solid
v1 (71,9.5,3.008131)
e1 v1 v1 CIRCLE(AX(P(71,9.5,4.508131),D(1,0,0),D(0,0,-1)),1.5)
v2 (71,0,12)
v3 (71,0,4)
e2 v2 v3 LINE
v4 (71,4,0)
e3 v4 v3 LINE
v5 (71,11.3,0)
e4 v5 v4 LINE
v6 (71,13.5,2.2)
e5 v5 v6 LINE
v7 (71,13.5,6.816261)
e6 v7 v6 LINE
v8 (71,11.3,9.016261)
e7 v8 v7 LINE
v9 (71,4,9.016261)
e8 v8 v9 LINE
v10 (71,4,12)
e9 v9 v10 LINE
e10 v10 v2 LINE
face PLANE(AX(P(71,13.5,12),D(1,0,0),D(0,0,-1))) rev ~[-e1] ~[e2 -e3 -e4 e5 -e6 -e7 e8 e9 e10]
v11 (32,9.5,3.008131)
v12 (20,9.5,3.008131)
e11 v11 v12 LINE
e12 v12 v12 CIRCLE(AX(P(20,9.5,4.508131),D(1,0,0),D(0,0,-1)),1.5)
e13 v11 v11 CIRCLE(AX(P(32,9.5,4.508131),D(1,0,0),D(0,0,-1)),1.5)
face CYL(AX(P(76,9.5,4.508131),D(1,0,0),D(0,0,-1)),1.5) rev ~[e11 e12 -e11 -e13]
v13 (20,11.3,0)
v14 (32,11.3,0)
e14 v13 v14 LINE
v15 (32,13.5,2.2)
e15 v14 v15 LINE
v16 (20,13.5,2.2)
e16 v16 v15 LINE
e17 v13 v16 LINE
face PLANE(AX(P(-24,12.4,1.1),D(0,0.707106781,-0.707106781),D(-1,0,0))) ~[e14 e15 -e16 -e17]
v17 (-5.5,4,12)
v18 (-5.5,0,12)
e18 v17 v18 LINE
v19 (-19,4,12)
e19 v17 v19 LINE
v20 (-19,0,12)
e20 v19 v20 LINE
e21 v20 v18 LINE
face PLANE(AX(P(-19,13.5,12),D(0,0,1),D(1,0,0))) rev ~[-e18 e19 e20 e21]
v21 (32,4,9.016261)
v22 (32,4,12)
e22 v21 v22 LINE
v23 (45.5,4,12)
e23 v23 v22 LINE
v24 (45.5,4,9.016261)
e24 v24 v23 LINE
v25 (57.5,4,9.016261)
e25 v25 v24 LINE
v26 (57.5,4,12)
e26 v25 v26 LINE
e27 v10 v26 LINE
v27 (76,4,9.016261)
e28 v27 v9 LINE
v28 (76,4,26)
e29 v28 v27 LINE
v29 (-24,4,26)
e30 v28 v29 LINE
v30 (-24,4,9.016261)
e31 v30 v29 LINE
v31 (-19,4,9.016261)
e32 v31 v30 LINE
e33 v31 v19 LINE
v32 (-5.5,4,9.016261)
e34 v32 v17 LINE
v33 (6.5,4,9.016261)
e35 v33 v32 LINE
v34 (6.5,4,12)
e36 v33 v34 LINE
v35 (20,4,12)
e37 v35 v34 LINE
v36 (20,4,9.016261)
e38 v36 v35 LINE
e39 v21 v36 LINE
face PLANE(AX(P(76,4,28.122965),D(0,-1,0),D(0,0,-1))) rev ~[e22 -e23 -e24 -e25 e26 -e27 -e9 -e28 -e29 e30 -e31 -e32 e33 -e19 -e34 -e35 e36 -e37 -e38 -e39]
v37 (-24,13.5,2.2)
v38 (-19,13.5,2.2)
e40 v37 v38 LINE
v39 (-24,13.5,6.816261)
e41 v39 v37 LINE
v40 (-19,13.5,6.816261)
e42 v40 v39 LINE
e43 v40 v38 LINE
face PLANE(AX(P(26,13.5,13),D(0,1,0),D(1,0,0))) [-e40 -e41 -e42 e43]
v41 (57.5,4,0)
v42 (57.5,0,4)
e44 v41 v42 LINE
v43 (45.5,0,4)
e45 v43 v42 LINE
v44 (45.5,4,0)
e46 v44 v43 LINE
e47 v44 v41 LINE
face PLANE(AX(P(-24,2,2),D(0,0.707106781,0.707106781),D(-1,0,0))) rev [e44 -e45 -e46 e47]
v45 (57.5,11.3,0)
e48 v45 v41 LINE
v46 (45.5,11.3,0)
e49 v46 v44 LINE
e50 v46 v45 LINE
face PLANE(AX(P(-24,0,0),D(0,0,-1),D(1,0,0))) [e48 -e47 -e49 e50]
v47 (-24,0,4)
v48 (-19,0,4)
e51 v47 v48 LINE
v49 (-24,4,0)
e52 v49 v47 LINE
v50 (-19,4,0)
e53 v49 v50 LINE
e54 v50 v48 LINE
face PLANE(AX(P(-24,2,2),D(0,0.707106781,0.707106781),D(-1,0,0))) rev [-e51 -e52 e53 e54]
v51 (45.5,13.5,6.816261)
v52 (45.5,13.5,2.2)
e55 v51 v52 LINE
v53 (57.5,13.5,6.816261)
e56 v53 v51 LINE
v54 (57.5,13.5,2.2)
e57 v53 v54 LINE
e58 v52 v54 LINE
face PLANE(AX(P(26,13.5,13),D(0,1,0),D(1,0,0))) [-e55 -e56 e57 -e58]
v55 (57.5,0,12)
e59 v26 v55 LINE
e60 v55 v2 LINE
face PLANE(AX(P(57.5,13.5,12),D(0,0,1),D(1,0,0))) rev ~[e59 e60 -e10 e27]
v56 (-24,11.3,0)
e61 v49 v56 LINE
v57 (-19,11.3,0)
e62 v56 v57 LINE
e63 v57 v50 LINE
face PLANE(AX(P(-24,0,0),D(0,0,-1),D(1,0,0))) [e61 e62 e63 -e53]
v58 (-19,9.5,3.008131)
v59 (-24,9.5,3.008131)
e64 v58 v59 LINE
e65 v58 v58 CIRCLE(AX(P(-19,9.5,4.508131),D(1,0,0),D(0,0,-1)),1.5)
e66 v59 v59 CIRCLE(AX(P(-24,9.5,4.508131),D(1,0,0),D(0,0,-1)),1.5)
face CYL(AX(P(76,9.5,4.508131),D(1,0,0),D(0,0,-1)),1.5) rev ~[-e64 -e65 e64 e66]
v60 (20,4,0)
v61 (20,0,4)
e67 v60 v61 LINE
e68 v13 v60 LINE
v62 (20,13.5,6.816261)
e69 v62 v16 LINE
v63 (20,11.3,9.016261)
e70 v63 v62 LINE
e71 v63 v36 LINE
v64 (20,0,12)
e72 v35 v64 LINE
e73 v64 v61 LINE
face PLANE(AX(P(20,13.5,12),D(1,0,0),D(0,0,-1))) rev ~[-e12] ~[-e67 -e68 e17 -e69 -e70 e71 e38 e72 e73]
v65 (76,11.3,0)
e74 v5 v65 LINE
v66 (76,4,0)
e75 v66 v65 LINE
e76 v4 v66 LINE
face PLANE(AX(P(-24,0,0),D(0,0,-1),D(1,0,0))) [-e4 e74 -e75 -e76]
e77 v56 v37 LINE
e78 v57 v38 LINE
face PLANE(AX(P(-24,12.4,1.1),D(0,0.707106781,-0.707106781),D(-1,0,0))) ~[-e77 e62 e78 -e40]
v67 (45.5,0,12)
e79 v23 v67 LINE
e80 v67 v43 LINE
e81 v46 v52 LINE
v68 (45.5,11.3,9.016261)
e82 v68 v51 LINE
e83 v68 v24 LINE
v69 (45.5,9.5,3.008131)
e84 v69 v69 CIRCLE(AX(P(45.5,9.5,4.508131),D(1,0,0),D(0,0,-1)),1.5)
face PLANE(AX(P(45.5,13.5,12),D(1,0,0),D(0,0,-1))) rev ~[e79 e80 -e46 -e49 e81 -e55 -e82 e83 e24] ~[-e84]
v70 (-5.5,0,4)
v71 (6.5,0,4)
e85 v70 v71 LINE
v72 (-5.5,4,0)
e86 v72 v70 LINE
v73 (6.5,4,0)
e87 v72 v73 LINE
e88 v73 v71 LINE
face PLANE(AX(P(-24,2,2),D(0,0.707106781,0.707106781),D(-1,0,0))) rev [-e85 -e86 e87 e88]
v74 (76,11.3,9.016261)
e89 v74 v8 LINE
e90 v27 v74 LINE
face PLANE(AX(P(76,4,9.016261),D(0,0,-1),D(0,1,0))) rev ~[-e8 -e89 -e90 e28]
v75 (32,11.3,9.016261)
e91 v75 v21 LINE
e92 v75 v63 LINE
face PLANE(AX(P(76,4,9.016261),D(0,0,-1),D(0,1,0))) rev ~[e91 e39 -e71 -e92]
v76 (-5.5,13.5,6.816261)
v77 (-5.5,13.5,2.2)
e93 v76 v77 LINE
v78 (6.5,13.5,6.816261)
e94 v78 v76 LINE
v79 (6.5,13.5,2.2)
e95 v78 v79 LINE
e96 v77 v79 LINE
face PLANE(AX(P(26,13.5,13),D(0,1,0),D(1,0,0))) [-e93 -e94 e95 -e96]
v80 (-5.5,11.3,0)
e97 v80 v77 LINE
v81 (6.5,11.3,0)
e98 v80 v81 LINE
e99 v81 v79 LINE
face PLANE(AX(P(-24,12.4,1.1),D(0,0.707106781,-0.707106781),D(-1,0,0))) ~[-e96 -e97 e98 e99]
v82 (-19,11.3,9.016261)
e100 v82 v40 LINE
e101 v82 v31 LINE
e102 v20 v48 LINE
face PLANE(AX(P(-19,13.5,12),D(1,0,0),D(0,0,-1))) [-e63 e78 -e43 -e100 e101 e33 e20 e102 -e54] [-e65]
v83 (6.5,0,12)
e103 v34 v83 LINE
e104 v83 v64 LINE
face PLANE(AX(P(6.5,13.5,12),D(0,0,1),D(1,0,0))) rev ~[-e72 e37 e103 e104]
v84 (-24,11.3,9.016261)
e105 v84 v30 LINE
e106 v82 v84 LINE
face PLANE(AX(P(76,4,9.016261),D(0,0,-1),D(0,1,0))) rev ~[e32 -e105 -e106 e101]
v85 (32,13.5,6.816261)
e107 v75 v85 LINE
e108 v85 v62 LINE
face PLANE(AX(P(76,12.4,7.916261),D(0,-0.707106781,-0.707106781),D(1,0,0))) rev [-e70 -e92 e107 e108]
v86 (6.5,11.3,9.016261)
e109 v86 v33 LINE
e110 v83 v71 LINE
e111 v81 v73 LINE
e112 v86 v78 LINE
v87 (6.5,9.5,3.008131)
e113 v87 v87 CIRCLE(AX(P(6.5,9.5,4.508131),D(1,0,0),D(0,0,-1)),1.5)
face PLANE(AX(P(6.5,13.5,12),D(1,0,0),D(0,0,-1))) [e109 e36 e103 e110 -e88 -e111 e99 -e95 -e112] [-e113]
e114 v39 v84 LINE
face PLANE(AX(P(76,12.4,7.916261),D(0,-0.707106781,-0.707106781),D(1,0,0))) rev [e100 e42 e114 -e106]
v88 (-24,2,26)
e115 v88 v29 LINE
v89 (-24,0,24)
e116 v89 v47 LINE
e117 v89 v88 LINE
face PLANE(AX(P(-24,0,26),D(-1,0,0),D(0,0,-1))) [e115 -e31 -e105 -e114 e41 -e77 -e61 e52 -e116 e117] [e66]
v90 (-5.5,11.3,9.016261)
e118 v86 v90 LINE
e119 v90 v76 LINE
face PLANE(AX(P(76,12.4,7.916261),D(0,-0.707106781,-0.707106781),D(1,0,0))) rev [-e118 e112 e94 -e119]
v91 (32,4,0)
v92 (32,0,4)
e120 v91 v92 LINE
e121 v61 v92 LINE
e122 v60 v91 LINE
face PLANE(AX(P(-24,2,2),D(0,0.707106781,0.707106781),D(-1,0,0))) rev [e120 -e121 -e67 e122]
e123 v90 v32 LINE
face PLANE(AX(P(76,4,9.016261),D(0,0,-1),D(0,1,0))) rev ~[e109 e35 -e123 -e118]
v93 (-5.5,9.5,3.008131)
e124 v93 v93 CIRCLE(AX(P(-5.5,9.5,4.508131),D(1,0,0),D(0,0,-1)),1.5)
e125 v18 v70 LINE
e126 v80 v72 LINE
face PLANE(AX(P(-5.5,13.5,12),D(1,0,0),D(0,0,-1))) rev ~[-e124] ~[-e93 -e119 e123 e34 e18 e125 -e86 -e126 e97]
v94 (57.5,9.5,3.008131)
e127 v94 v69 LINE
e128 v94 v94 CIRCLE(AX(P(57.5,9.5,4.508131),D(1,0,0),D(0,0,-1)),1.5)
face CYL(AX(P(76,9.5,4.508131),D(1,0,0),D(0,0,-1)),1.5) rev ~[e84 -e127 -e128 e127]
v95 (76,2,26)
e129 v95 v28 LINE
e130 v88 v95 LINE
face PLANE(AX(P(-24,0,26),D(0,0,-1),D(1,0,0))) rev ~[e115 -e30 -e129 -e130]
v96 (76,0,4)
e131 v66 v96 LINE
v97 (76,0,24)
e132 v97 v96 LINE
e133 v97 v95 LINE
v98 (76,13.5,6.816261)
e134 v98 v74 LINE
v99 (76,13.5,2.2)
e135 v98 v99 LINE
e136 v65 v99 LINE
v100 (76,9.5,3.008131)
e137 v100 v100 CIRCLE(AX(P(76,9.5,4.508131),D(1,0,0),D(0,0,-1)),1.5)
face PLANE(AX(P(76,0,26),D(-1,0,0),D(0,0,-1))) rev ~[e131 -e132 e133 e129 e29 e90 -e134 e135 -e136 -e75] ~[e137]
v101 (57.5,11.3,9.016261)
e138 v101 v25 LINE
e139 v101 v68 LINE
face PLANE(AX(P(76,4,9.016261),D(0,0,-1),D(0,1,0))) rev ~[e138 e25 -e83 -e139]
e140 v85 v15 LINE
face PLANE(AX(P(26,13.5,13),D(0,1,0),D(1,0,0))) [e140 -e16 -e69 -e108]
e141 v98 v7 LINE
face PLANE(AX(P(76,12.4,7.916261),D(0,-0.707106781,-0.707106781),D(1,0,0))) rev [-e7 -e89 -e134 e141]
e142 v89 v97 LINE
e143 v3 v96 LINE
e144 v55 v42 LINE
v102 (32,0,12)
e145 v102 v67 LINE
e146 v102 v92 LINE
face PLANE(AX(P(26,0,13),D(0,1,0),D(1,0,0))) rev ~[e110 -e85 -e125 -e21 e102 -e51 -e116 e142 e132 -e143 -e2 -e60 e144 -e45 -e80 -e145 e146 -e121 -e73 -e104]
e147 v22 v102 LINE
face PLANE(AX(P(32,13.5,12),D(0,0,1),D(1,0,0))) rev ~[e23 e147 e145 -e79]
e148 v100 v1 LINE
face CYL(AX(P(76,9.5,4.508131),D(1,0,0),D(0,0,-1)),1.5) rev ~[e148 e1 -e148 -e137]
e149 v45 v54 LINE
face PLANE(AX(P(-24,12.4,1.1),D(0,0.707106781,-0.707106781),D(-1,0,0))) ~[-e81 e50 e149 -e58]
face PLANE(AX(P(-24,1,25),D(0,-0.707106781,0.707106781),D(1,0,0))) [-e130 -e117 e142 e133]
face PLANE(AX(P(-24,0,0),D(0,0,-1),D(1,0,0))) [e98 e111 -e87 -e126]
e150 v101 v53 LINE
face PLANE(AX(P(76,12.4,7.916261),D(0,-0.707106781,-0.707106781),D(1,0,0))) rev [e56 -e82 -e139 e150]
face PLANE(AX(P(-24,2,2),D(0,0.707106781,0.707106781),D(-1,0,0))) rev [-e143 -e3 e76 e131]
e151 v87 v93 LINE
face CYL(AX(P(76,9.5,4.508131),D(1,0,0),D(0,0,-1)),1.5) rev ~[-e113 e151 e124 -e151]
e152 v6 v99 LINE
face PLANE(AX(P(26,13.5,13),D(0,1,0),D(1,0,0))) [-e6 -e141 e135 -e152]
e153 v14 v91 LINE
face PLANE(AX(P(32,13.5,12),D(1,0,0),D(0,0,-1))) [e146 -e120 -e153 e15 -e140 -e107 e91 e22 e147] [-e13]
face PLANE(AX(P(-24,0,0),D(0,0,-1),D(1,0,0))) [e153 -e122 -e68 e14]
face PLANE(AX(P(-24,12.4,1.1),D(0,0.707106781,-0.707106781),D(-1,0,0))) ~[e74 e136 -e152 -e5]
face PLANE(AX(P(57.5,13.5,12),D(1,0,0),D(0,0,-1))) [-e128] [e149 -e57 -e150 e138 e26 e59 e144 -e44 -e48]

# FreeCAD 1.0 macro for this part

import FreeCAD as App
import Part
import Sketcher

V = App.Vector


def edges_at(feature, points):
    """Names of the edges that pass closest to the given points."""
    edges = feature.Shape.Edges
    near = lambda p: min(range(len(edges)), key=lambda i: edges[i].distToShape(Part.Vertex(*p))[0])
    return sorted({f"Edge{near(p) + 1}" for p in points})


def add_polygon(sketch, points):
    """Adds a closed chain of lines whose ends are joined by coincident constraints."""
    first, n = sketch.GeometryCount, len(points)
    for a, b in zip(points, points[1:] + points[:1]):
        sketch.addGeometry(Part.LineSegment(App.Vector(*a, 0), App.Vector(*b, 0)), False)
    for i in range(n):
        sketch.addConstraint(Sketcher.Constraint("Coincident", first + i, 2, first + (i + 1) % n, 1))

doc = App.newDocument("Part")
params = doc.addObject("Spreadsheet::Sheet", "Params")
for row, (alias, value) in enumerate([
    ("sketch1_width", "100 mm"),
    ("sketch1_height", "26 mm"),
    ("pad1_length", "13.5 mm"),
    ("sketch2_width", "9.5 mm"),
    ("chamfer_size", "2.2 mm"),
    ("chamfer2_size", "4 mm"),
    ("sketch3_diameter", "3 mm"),
    ("sketch4_height", "12 mm"),
    ("sketch4_width", "13.5 mm"),
    ("chamfer3_size", "2 mm"),
], start=1):
    params.set(f"A{row}", alias)
    params.set(f"B{row}", "=" + value)
    params.setAlias(f"B{row}", alias)

body = doc.addObject("PartDesign::Body", "Body")

# Sketch on XZ plane
sketch1 = body.newObject("Sketcher::SketchObject", "Sketch")
sketch1.AttachmentSupport = (doc.getObject("XZ_Plane"), [""])
sketch1.MapMode = "FlatFace"
add_polygon(sketch1, [(-24, 0), (-24, 26), (76, 26), (76, 0)])  # lines 0-3
sketch1.addConstraint([
    Sketcher.Constraint("Vertical", 0),
    Sketcher.Constraint("Horizontal", 1),
    Sketcher.Constraint("Vertical", 2),
    Sketcher.Constraint("Horizontal", 3),
    Sketcher.Constraint("PointOnObject", 2, 2, -1),
    Sketcher.Constraint("DistanceX", 1, 1, 1, 2, 100.0),
    Sketcher.Constraint("DistanceY", 0, 1, 0, 2, 26.0),
    Sketcher.Constraint("DistanceX", 0, 2, -1, 1, 24.0),
])
sketch1.setExpression("Constraints[9]", "Params.sketch1_width")
sketch1.setExpression("Constraints[10]", "Params.sketch1_height")
pad1 = body.newObject("PartDesign::Pad", "Pad")
pad1.Profile = sketch1
pad1.setExpression("Length", "Params.pad1_length")
pad1.Reversed = True

# Sketch on YZ plane
sketch2 = body.newObject("Sketcher::SketchObject", "Sketch001")
sketch2.AttachmentSupport = (doc.getObject("YZ_Plane"), [""])
sketch2.MapMode = "FlatFace"
sketch2.AttachmentOffset = App.Placement(V(0, 0, 76), App.Rotation())
add_polygon(sketch2, [(14, 28), (4, 28), (4, 9), (14, 9)])  # lines 0-3
sketch2.addConstraint([
    Sketcher.Constraint("Horizontal", 0),
    Sketcher.Constraint("Vertical", 1),
    Sketcher.Constraint("Horizontal", 2),
    Sketcher.Constraint("Vertical", 3),
    Sketcher.Constraint("DistanceX", 0, 2, 0, 1, 9.5),
    Sketcher.Constraint("DistanceX", -1, 1, 0, 2, 4.0),
    Sketcher.Constraint("DistanceY", 1, 2, 1, 1, 19.106704),
    Sketcher.Constraint("DistanceY", -1, 1, 1, 2, 9.016261),
])
sketch2.setExpression("Constraints[8]", "Params.sketch2_width")
pocket1 = body.newObject("PartDesign::Pocket", "Pocket")
pocket1.Profile = sketch2
pocket1.Type = "ThroughAll"
doc.recompute()

chamfer = body.newObject("PartDesign::Chamfer", "Chamfer")
chamfer.Base = (pocket1, edges_at(pocket1, [(26, 13.5, 0), (26, 13.5, 9.016)]))
chamfer.setExpression("Size", "Params.chamfer_size")
doc.recompute()

chamfer2 = body.newObject("PartDesign::Chamfer", "Chamfer001")
chamfer2.Base = (chamfer, edges_at(chamfer, [(26, 0, 0)]))
chamfer2.setExpression("Size", "Params.chamfer2_size")

# Sketch on YZ plane
sketch3 = body.newObject("Sketcher::SketchObject", "Sketch002")
sketch3.AttachmentSupport = (doc.getObject("YZ_Plane"), [""])
sketch3.MapMode = "FlatFace"
sketch3.AttachmentOffset = App.Placement(V(0, 0, 76), App.Rotation())
sketch3.addGeometry(Part.Circle(V(9.5, 4.5, 0), V(0, 0, 1), 1.5), False)
sketch3.addConstraint([
    Sketcher.Constraint("Diameter", 0, 3.0),
    Sketcher.Constraint("DistanceX", -1, 1, 0, 3, 9.5),
    Sketcher.Constraint("DistanceY", -1, 1, 0, 3, 4.508131),
])
sketch3.setExpression("Constraints[0]", "Params.sketch3_diameter")
pocket2 = body.newObject("PartDesign::Pocket", "Pocket001")
pocket2.Profile = sketch3
pocket2.Type = "ThroughAll"

# Sketch on XZ plane
sketch4 = body.newObject("Sketcher::SketchObject", "Sketch003")
sketch4.AttachmentSupport = (doc.getObject("XZ_Plane"), [""])
sketch4.MapMode = "FlatFace"
sketch4.AttachmentOffset = App.Placement(V(0, 0, -13.5), App.Rotation())
add_polygon(sketch4, [(-19, 0), (-19, 12), (-6, 12), (-6, 0)])  # lines 0-3
add_polygon(sketch4, [(58, 0), (58, 12), (71, 12), (71, 0)])  # lines 4-7
add_polygon(sketch4, [(6, 0), (6, 12), (20, 12), (20, 0)])  # lines 8-11
add_polygon(sketch4, [(32, 0), (32, 12), (46, 12), (46, 0)])  # lines 12-15
sketch4.addConstraint([
    Sketcher.Constraint("Vertical", 0),
    Sketcher.Constraint("Horizontal", 1),
    Sketcher.Constraint("Vertical", 2),
    Sketcher.Constraint("Horizontal", 3),
    Sketcher.Constraint("Vertical", 4),
    Sketcher.Constraint("Horizontal", 5),
    Sketcher.Constraint("Vertical", 6),
    Sketcher.Constraint("Horizontal", 7),
    Sketcher.Constraint("Vertical", 8),
    Sketcher.Constraint("Horizontal", 9),
    Sketcher.Constraint("Vertical", 10),
    Sketcher.Constraint("Horizontal", 11),
    Sketcher.Constraint("Vertical", 12),
    Sketcher.Constraint("Horizontal", 13),
    Sketcher.Constraint("Vertical", 14),
    Sketcher.Constraint("Horizontal", 15),
    Sketcher.Constraint("PointOnObject", 2, 2, -1),
    Sketcher.Constraint("PointOnObject", 6, 2, -1),
    Sketcher.Constraint("PointOnObject", 10, 2, -1),
    Sketcher.Constraint("PointOnObject", 14, 2, -1),
    Sketcher.Constraint("Horizontal", 1, 2, 4, 2),
    Sketcher.Constraint("Horizontal", 5, 2, 8, 2),
    Sketcher.Constraint("Horizontal", 9, 2, 12, 2),
    Sketcher.Constraint("Equal", 3, 5),
    Sketcher.Constraint("Equal", 7, 9),
    Sketcher.Constraint("Equal", 11, 13),
    Sketcher.Constraint("DistanceY", 0, 1, 0, 2, 12.0),
    Sketcher.Constraint("DistanceX", 1, 1, 1, 2, 13.5),
    Sketcher.Constraint("DistanceX", 0, 2, -1, 1, 19.0),
    Sketcher.Constraint("DistanceX", -1, 1, 5, 2, 71.0),
    Sketcher.Constraint("DistanceX", -1, 1, 9, 2, 20.0),
    Sketcher.Constraint("DistanceX", -1, 1, 12, 2, 32.0),
])
sketch4.setExpression("Constraints[42]", "Params.sketch4_height")
sketch4.setExpression("Constraints[43]", "Params.sketch4_width")
pocket3 = body.newObject("PartDesign::Pocket", "Pocket002")
pocket3.Profile = sketch4
pocket3.Type = "ThroughAll"
pocket3.Reversed = True
doc.recompute()

chamfer3 = body.newObject("PartDesign::Chamfer", "Chamfer002")
chamfer3.Base = (pocket3, edges_at(pocket3, [(26, 0, 26)]))
chamfer3.setExpression("Size", "Params.chamfer3_size")

doc.recompute()
